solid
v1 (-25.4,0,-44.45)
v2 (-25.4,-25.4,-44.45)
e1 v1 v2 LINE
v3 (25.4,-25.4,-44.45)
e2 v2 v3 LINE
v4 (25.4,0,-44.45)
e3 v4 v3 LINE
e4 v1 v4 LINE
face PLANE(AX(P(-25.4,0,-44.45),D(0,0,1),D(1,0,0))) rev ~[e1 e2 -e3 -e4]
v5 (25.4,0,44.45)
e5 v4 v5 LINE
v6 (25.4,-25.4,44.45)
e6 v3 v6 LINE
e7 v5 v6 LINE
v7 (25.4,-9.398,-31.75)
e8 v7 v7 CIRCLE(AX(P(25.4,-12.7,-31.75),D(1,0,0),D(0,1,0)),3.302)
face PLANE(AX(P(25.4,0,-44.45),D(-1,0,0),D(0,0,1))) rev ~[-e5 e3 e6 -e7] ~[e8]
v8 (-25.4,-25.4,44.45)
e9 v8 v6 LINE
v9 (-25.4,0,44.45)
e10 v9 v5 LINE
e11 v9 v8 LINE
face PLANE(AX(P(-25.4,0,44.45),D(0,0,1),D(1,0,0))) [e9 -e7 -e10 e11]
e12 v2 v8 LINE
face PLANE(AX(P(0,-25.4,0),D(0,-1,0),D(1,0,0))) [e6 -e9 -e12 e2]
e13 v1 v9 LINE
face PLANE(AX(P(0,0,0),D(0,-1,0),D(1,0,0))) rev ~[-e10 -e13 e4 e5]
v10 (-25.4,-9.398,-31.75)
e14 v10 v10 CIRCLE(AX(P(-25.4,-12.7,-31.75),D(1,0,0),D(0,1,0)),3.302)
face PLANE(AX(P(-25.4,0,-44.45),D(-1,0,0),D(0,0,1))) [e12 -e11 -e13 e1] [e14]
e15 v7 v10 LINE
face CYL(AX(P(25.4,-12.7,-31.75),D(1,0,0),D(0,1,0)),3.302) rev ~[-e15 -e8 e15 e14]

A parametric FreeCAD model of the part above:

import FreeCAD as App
import Part
import Sketcher
Q = App.Units.Quantity

doc = App.newDocument("Part")
params = doc.addObject("Spreadsheet::Sheet", "Params")
for row, (alias, value) in enumerate([
    ("sketch1_width", "2 in"),
    ("sketch1_height", "3.5 in"),
    ("pad1_length", "1 in"),
    ("sketch2_diameter", "0.26 in"),
], start=1):
    params.set(f"A{row}", alias)
    params.set(f"B{row}", "=" + value)
    params.setAlias(f"B{row}", alias)

body = doc.addObject("PartDesign::Body", "Body")

# Sketch on XZ plane
sketch1 = doc.addObject("Sketcher::SketchObject", "Sketch")
body.addObject(sketch1)
sketch1.AttachmentSupport = (doc.XZ_Plane, [""])
sketch1.MapMode = "FlatFace"
sketch1.addGeometry(Part.LineSegment(App.Vector(-25.4, 44.45, 0), App.Vector(-25.4, -44.45, 0)), False)
sketch1.addGeometry(Part.LineSegment(App.Vector(-25.4, -44.45, 0), App.Vector(25.4, -44.45, 0)), False)
sketch1.addGeometry(Part.LineSegment(App.Vector(25.4, -44.45, 0), App.Vector(25.4, 44.45, 0)), False)
sketch1.addGeometry(Part.LineSegment(App.Vector(25.4, 44.45, 0), App.Vector(-25.4, 44.45, 0)), False)
sketch1.addConstraint(Sketcher.Constraint("Coincident", 0, 2, 1, 1))
sketch1.addConstraint(Sketcher.Constraint("Coincident", 1, 2, 2, 1))
sketch1.addConstraint(Sketcher.Constraint("Coincident", 2, 2, 3, 1))
sketch1.addConstraint(Sketcher.Constraint("Coincident", 3, 2, 0, 1))
sketch1.addConstraint(Sketcher.Constraint("Vertical", 0))
sketch1.addConstraint(Sketcher.Constraint("Horizontal", 1))
sketch1.addConstraint(Sketcher.Constraint("Vertical", 2))
sketch1.addConstraint(Sketcher.Constraint("Horizontal", 3))
sketch1.addConstraint(Sketcher.Constraint("Symmetric", 0, 2, 2, 2, -1, 1))
sketch1.addConstraint(Sketcher.Constraint("DistanceX", 1, 1, 1, 2, Q("2 in")))
sketch1.addConstraint(Sketcher.Constraint("DistanceY", 0, 2, 0, 1, Q("3.5 in")))
sketch1.setExpression("Constraints[9]", "Params.sketch1_width")
sketch1.setExpression("Constraints[10]", "Params.sketch1_height")
pad1 = doc.addObject("PartDesign::Pad", "Pad")
body.addObject(pad1)
pad1.Profile = sketch1
pad1.setExpression("Length", "Params.pad1_length")

# Sketch on YZ plane
sketch2 = doc.addObject("Sketcher::SketchObject", "Sketch001")
body.addObject(sketch2)
sketch2.AttachmentSupport = (doc.YZ_Plane, [""])
sketch2.MapMode = "FlatFace"
sketch2.AttachmentOffset = App.Placement(App.Vector(0, 0, 1 * 25.4), App.Rotation())
sketch2.addGeometry(Part.Circle(App.Vector(-12.7, -31.75, 0), App.Vector(0, 0, 1), 3.302), False)
sketch2.addConstraint(Sketcher.Constraint("Diameter", 0, Q("0.26 in")))
sketch2.addConstraint(Sketcher.Constraint("DistanceX", 0, 3, -1, 1, Q("0.5 in")))
sketch2.addConstraint(Sketcher.Constraint("DistanceY", 0, 3, -1, 1, Q("1.25 in")))
sketch2.setExpression("Constraints[0]", "Params.sketch2_diameter")
pocket1 = doc.addObject("PartDesign::Pocket", "Pocket")
body.addObject(pocket1)
pocket1.Profile = sketch2
pocket1.Type = "ThroughAll"

doc.recompute()
